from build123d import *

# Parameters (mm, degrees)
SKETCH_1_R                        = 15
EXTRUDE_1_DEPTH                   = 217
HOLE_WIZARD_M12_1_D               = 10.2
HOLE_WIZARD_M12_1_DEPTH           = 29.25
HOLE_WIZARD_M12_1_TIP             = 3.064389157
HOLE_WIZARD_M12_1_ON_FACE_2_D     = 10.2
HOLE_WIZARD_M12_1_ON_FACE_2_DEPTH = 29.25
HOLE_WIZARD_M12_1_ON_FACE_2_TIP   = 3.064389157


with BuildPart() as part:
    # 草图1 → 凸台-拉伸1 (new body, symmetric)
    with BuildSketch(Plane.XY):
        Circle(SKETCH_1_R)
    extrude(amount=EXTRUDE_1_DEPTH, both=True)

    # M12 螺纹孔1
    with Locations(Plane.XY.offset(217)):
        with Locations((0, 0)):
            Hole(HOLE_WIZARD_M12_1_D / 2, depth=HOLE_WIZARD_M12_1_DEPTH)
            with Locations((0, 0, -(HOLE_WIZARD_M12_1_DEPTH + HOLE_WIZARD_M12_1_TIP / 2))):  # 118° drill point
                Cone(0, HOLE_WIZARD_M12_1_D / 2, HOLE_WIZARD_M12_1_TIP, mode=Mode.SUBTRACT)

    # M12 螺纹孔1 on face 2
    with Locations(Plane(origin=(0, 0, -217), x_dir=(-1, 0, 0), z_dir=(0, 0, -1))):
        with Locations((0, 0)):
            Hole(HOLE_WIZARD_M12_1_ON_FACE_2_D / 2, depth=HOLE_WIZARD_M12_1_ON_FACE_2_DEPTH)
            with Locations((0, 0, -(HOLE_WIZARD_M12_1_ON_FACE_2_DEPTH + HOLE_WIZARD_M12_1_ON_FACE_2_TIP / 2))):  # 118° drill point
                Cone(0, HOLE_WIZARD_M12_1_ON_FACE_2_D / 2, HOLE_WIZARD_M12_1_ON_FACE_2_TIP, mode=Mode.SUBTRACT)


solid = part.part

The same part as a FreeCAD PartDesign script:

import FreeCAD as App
import Part
import Sketcher
Q = App.Units.Quantity

doc = App.newDocument("Part")
body = doc.addObject("PartDesign::Body", "Body")

sketch1 = body.newObject("Sketcher::SketchObject", "Sketch")
sketch1.AttachmentSupport = (doc.getObject("XY_Plane"), [""])
sketch1.MapMode = "FlatFace"
sketch1.addGeometry(Part.Circle(App.Vector(0, 0, 0), App.Vector(0, 0, 1), 15), False)
sketch1.addConstraint([
    Sketcher.Constraint("Coincident", 0, 3, -1, 1),
    Sketcher.Constraint("Diameter", 0, Q("30 mm")),
])
pad1 = body.newObject("PartDesign::Pad", "Pad")
pad1.Profile = sketch1
pad1.Length = 434
pad1.Midplane = True

sketch2 = body.newObject("Sketcher::SketchObject", "Sketch001")
sketch2.AttachmentSupport = (doc.getObject("XY_Plane"), [""])
sketch2.MapMode = "FlatFace"
sketch2.AttachmentOffset = App.Placement(App.Vector(0, 0, 217), App.Rotation())
sketch2.addGeometry(Part.Circle(App.Vector(0, 0, 0), App.Vector(0, 0, 1), 5), False)
sketch2.addConstraint([
    Sketcher.Constraint("Coincident", 0, 3, -1, 1),
    Sketcher.Constraint("Diameter", 0, Q("10.2 mm")),
])
doc.recompute()
hole = body.newObject("PartDesign::Hole", "Hole")
hole.Profile = sketch2
hole.ThreadType = "None"
hole.Diameter = 10.2
hole.DepthType = "Dimension"
hole.Depth = 29.25
hole.DrillPoint = "Angled"
hole.DrillPointAngle = 118

sketch3 = body.newObject("Sketcher::SketchObject", "Sketch002")
sketch3.AttachmentSupport = (doc.getObject("XY_Plane"), [""])
sketch3.MapMode = "FlatFace"
sketch3.AttachmentOffset = App.Placement(App.Vector(0, 0, -217), App.Rotation())
sketch3.addGeometry(Part.Circle(App.Vector(0, 0, 0), App.Vector(0, 0, 1), 5), False)
sketch3.addConstraint([
    Sketcher.Constraint("Coincident", 0, 3, -1, 1),
    Sketcher.Constraint("Diameter", 0, Q("10.2 mm")),
])
doc.recompute()
hole2 = body.newObject("PartDesign::Hole", "Hole001")
hole2.Profile = sketch3
hole2.ThreadType = "None"
hole2.Diameter = 10.2
hole2.DepthType = "Dimension"
hole2.Depth = 29.25
hole2.DrillPoint = "Angled"
hole2.DrillPointAngle = 118
hole2.Reversed = True

doc.recompute()
